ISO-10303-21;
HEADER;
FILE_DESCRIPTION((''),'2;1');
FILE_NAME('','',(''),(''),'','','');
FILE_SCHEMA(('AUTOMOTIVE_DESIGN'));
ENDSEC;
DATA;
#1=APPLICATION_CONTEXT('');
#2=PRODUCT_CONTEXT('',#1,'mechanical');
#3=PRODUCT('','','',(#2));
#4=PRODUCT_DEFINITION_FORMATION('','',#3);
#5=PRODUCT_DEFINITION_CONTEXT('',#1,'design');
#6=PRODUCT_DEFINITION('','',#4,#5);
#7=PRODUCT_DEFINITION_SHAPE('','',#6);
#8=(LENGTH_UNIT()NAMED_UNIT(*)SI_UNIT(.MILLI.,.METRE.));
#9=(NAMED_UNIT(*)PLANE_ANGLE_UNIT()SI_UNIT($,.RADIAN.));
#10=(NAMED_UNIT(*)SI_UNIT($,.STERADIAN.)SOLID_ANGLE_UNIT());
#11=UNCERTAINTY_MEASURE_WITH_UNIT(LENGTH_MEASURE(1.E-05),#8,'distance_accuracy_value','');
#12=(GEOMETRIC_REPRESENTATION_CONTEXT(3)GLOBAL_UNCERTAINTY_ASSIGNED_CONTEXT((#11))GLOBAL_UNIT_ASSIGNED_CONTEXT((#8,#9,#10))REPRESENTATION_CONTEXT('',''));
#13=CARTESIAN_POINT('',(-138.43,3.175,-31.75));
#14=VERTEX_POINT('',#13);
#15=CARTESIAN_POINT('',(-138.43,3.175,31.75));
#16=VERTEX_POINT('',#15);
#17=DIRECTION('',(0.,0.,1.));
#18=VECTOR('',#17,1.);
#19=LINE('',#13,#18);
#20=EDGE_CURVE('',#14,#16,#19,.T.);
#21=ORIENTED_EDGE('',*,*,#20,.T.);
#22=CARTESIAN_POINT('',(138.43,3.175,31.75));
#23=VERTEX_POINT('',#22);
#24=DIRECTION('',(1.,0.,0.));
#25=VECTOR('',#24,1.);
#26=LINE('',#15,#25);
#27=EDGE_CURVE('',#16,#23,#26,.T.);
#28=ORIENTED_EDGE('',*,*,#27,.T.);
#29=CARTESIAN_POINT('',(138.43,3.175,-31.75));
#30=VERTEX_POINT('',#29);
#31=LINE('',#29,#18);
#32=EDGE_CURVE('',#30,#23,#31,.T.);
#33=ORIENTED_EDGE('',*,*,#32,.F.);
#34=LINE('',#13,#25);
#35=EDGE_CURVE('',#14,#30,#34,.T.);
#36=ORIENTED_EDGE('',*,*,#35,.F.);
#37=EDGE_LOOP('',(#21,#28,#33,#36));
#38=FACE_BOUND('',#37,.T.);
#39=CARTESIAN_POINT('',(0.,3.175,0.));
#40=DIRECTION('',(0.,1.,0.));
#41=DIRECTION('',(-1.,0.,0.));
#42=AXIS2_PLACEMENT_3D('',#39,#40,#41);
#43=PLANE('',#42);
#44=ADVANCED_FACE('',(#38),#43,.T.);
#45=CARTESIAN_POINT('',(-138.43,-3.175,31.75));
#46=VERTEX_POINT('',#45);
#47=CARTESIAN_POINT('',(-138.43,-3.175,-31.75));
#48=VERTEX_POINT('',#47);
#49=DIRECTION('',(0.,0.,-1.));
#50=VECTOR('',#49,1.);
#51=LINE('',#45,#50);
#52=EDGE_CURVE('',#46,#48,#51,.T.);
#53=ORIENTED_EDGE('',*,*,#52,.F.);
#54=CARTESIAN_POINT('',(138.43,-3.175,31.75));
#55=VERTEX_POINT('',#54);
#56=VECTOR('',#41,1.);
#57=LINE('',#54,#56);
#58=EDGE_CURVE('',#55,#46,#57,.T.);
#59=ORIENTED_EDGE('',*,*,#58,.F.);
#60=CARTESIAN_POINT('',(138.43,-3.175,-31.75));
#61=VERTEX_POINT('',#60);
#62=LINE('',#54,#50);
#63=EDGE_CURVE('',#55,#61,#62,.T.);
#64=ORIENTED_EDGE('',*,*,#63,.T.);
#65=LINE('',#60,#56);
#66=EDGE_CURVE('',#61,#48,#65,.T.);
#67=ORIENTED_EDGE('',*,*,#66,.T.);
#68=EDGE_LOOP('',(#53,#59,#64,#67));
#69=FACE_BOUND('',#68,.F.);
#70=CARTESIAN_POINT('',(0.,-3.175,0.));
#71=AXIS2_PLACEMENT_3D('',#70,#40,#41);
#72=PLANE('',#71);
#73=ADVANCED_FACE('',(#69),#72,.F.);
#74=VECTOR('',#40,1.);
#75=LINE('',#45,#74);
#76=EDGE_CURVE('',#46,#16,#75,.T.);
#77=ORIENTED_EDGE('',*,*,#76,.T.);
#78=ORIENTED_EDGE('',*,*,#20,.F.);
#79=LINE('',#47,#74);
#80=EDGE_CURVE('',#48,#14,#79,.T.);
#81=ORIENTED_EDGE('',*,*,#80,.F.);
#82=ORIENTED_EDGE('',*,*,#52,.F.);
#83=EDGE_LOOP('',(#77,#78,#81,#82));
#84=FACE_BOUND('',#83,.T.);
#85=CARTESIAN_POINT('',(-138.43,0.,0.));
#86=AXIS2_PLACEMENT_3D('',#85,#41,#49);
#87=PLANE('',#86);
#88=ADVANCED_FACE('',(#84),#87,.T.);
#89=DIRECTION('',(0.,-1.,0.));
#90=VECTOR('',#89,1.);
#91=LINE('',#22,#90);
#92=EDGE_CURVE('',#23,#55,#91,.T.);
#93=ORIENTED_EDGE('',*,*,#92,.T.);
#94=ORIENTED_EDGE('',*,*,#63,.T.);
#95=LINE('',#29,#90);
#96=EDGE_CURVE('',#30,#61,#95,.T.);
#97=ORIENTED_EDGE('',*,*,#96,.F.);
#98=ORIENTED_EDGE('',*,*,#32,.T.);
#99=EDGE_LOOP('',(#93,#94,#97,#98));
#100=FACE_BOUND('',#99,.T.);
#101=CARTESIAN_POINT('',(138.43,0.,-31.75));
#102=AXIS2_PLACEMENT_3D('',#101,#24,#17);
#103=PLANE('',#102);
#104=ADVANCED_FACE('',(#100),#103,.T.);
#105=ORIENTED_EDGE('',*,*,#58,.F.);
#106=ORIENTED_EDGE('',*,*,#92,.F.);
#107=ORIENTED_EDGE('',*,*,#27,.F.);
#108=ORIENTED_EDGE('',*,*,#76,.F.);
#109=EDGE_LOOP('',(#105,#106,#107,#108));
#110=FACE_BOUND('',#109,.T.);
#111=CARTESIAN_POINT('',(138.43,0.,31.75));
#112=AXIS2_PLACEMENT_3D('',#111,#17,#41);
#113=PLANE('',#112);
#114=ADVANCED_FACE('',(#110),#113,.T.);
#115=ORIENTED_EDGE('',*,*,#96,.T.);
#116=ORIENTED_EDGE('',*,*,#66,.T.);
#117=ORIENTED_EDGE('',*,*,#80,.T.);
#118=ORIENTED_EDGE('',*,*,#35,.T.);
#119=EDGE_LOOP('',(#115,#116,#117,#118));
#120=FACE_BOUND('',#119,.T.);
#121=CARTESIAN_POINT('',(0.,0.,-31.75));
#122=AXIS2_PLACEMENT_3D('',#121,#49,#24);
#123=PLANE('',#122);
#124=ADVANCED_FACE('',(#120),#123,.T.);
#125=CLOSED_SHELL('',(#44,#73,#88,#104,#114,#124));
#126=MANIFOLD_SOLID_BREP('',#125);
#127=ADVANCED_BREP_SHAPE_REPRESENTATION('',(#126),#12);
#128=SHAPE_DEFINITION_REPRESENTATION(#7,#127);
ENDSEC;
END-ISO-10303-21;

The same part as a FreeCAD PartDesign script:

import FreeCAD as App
import Part
import Sketcher

V = App.Vector
Q = App.Units.Quantity

doc = App.newDocument("Part")
body = doc.addObject("PartDesign::Body", "Body")

# Sketch on XZ plane
sketch1 = body.newObject("Sketcher::SketchObject", "Sketch")
sketch1.AttachmentSupport = (doc.getObject("XZ_Plane"), [""])
sketch1.MapMode = "FlatFace"
sketch1.addGeometry(Part.LineSegment(V(138, -32, 0), V(-138, -32, 0)), False)
sketch1.addGeometry(Part.LineSegment(V(-138, -32, 0), V(-138, 32, 0)), False)
sketch1.addGeometry(Part.LineSegment(V(-138, 32, 0), V(138, 32, 0)), False)
sketch1.addGeometry(Part.LineSegment(V(138, 32, 0), V(138, -32, 0)), False)
sketch1.addConstraint(Sketcher.Constraint("Coincident", 0, 2, 1, 1))
sketch1.addConstraint(Sketcher.Constraint("Coincident", 1, 2, 2, 1))
sketch1.addConstraint(Sketcher.Constraint("Coincident", 2, 2, 3, 1))
sketch1.addConstraint(Sketcher.Constraint("Coincident", 3, 2, 0, 1))
sketch1.addConstraint(Sketcher.Constraint("Horizontal", 0))
sketch1.addConstraint(Sketcher.Constraint("Vertical", 1))
sketch1.addConstraint(Sketcher.Constraint("Horizontal", 2))
sketch1.addConstraint(Sketcher.Constraint("Vertical", 3))
sketch1.addConstraint(Sketcher.Constraint("Symmetric", 0, 2, 2, 2, -1, 1))
sketch1.addConstraint(Sketcher.Constraint("DistanceX", 0, 2, 0, 1, Q("10.9 in")))
sketch1.addConstraint(Sketcher.Constraint("DistanceY", 1, 1, 1, 2, Q("2.5 in")))
pad1 = body.newObject("PartDesign::Pad", "Pad")
pad1.Profile = sketch1
pad1.Length = Q("0.25 in")
pad1.Midplane = True

doc.recompute()
